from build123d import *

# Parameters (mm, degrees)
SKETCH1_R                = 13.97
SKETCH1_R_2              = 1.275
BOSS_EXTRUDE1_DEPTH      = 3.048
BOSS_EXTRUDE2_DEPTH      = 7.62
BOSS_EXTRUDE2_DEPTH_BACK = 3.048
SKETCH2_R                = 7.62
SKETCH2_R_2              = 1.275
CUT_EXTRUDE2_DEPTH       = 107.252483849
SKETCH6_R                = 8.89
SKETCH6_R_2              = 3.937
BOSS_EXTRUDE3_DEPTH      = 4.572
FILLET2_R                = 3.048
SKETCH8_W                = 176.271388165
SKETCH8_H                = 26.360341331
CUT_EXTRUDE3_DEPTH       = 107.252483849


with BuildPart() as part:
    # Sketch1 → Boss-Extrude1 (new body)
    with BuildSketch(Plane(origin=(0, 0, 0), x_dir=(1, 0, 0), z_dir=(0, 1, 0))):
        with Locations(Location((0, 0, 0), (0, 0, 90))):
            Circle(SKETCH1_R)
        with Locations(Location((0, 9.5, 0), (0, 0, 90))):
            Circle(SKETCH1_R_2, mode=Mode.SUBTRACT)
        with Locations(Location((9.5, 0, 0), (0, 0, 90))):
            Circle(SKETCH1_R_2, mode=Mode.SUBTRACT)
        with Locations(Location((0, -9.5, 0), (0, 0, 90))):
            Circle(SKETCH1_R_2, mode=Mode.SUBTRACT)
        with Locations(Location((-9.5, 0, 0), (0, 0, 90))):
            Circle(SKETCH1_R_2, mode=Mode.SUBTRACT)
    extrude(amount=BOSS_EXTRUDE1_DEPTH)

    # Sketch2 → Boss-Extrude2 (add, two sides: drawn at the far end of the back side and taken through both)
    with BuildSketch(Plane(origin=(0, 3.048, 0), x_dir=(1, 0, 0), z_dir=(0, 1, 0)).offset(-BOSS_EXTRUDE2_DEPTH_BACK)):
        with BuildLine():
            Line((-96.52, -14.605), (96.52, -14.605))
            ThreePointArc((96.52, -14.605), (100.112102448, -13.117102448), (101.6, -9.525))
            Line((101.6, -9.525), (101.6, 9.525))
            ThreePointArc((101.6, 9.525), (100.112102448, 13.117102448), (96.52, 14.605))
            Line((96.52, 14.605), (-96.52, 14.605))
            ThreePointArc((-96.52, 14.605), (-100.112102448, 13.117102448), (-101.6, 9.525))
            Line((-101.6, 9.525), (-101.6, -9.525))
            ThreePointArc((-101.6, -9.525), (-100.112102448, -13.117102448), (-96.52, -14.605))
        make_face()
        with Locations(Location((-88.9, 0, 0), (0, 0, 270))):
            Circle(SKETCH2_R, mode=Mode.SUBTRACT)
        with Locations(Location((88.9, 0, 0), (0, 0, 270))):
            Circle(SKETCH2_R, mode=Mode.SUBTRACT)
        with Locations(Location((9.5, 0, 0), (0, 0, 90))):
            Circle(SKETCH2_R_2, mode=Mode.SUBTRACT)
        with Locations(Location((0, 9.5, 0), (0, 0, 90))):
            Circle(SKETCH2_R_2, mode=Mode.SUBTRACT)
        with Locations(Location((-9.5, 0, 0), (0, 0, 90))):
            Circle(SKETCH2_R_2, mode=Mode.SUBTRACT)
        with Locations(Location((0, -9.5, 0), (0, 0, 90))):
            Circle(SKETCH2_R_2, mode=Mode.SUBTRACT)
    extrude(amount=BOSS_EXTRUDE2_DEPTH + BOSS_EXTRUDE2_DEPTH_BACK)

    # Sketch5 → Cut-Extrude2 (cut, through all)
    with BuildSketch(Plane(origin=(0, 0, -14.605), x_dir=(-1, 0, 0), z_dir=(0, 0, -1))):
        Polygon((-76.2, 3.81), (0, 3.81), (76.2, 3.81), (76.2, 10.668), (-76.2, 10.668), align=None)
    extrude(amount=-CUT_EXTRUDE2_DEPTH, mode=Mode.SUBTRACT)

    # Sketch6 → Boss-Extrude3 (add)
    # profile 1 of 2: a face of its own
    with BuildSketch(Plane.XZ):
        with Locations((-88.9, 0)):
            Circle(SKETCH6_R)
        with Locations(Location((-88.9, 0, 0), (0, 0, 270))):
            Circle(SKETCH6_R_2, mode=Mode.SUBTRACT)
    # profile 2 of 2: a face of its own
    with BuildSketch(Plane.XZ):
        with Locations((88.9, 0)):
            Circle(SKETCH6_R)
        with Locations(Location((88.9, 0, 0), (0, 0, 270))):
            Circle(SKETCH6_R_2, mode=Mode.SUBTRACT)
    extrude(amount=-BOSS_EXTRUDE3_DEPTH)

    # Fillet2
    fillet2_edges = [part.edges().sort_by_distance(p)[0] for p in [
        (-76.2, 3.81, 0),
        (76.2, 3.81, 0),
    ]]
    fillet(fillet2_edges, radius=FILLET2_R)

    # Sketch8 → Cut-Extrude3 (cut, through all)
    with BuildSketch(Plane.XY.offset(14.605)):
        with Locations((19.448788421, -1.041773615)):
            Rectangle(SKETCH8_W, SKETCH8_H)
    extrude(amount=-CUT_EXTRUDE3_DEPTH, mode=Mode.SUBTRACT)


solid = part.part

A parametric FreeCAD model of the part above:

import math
import FreeCAD as App
import Part
import Sketcher

V = App.Vector
Q = App.Units.Quantity


def edges_at(feature, points):
    """Names of the edges that pass closest to the given points."""
    edges = feature.Shape.Edges
    near = lambda p: min(range(len(edges)), key=lambda i: edges[i].distToShape(Part.Vertex(*p))[0])
    return sorted({f"Edge{near(p) + 1}" for p in points})

doc = App.newDocument("Part")
params = doc.addObject("Spreadsheet::Sheet", "Params")
for row, (alias, value) in enumerate([
    ("sketch1_diameter", "1.1 in"),
    ("pad1_length", "0.12 in"),
    ("sketch2_diameter", "0.6 in"),
    ("sketch2_radius", "0.2 in"),
    ("sketch2_width", "7.6 in"),
    ("sketch2_height", "0.75 in"),
    ("pad2_length", "0.3 in"),
    ("pad2_length2", "0.12 in"),
    ("sketch3_width", "6 in"),
    ("sketch3_height", "0.27 in"),
    ("sketch4_diameter", "0.7 in"),
    ("sketch4_diameter2", "0.31 in"),
    ("pad3_length", "0.18 in"),
    ("fillet_radius", "0.12 in"),
], start=1):
    params.set(f"A{row}", alias)
    params.set(f"B{row}", "=" + value)
    params.setAlias(f"B{row}", alias)

body = doc.addObject("PartDesign::Body", "Body")

sketch1 = body.newObject("Sketcher::SketchObject", "Sketch")
sketch1.AttachmentSupport = (doc.getObject("XZ_Plane"), [""])
sketch1.MapMode = "FlatFace"
sketch1.addGeometry(Part.Circle(V(0, 0, 0), V(0, 0, 1), 14), False)
sketch1.addGeometry(Part.Circle(V(0, 9.5, 0), V(0, 0, 1), 1.3), False)
sketch1.addGeometry(Part.Circle(V(9.5, 0, 0), V(0, 0, 1), 1.3), False)
sketch1.addGeometry(Part.Circle(V(-9.5, 0, 0), V(0, 0, 1), 1.3), False)
sketch1.addGeometry(Part.Circle(V(0, -9.5, 0), V(0, 0, 1), 1.3), False)
sketch1.addConstraint(Sketcher.Constraint("Coincident", 0, 3, -1, 1))
sketch1.addConstraint(Sketcher.Constraint("Equal", 1, 2))
sketch1.addConstraint(Sketcher.Constraint("Equal", 2, 3))
sketch1.addConstraint(Sketcher.Constraint("Equal", 3, 4))
sketch1.addConstraint(Sketcher.Constraint("Symmetric", 2, 3, 3, 3, -1, 1))
sketch1.addConstraint(Sketcher.Constraint("Symmetric", 1, 3, 4, 3, -1, 1))
sketch1.addConstraint(Sketcher.Constraint("PointOnObject", 1, 3, -2))
sketch1.addConstraint(Sketcher.Constraint("PointOnObject", 2, 3, -1))
sketch1.addConstraint(Sketcher.Constraint("Diameter", 0, Q("1.1 in")))
sketch1.addConstraint(Sketcher.Constraint("Diameter", 1, 2.55))
sketch1.addConstraint(Sketcher.Constraint("DistanceY", -1, 1, 1, 3, 9.5))
sketch1.addConstraint(Sketcher.Constraint("DistanceX", -1, 1, 2, 3, 9.5))
sketch1.setExpression("Constraints[8]", "Params.sketch1_diameter")
pad1 = body.newObject("PartDesign::Pad", "Pad")
pad1.Profile = sketch1
pad1.setExpression("Length", "Params.pad1_length")
pad1.Reversed = True

sketch2 = body.newObject("Sketcher::SketchObject", "Sketch001")
sketch2.AttachmentSupport = (doc.getObject("XZ_Plane"), [""])
sketch2.MapMode = "FlatFace"
sketch2.AttachmentOffset = App.Placement(V(0, 0, -0.12 * 25.4), App.Rotation())
sketch2.addGeometry(Part.LineSegment(V(-96.5, 14.6, 0), V(96.5, 14.6, 0)), False)
sketch2.addGeometry(Part.ArcOfCircle(Part.Circle(V(96.5, 9.5, 0), V(0, 0, 1), 5.1), math.radians(0), math.radians(90)), False)
sketch2.addGeometry(Part.LineSegment(V(101.6, 9.5, 0), V(101.6, -9.5, 0)), False)
sketch2.addGeometry(Part.ArcOfCircle(Part.Circle(V(96.5, -9.5, 0), V(0, 0, 1), 5.1), math.radians(-90), math.radians(0)), False)
sketch2.addGeometry(Part.LineSegment(V(96.5, -14.6, 0), V(-96.5, -14.6, 0)), False)
sketch2.addGeometry(Part.ArcOfCircle(Part.Circle(V(-96.5, -9.5, 0), V(0, 0, 1), 5.1), math.radians(-180), math.radians(-90)), False)
sketch2.addGeometry(Part.LineSegment(V(-101.6, -9.5, 0), V(-101.6, 9.5, 0)), False)
sketch2.addGeometry(Part.ArcOfCircle(Part.Circle(V(-96.5, 9.5, 0), V(0, 0, 1), 5.1), math.radians(90), math.radians(180)), False)
sketch2.addGeometry(Part.Circle(V(0, 9.5, 0), V(0, 0, 1), 1.3), False)
sketch2.addGeometry(Part.Circle(V(-88.9, 0, 0), V(0, 0, 1), 7.6), False)
sketch2.addGeometry(Part.Circle(V(-9.5, 0, 0), V(0, 0, 1), 1.3), False)
sketch2.addGeometry(Part.Circle(V(9.5, 0, 0), V(0, 0, 1), 1.3), False)
sketch2.addGeometry(Part.Circle(V(88.9, 0, 0), V(0, 0, 1), 7.6), False)
sketch2.addGeometry(Part.Circle(V(0, -9.5, 0), V(0, 0, 1), 1.3), False)
sketch2.addConstraint(Sketcher.Constraint("Tangent", 0, 2, 1, 2))
sketch2.addConstraint(Sketcher.Constraint("Tangent", 1, 1, 2, 1))
sketch2.addConstraint(Sketcher.Constraint("Tangent", 2, 2, 3, 2))
sketch2.addConstraint(Sketcher.Constraint("Tangent", 3, 1, 4, 1))
sketch2.addConstraint(Sketcher.Constraint("Tangent", 4, 2, 5, 2))
sketch2.addConstraint(Sketcher.Constraint("Tangent", 5, 1, 6, 1))
sketch2.addConstraint(Sketcher.Constraint("Tangent", 6, 2, 7, 2))
sketch2.addConstraint(Sketcher.Constraint("Tangent", 7, 1, 0, 1))
sketch2.addConstraint(Sketcher.Constraint("Horizontal", 0))
sketch2.addConstraint(Sketcher.Constraint("Vertical", 2))
sketch2.addConstraint(Sketcher.Constraint("Horizontal", 4))
sketch2.addConstraint(Sketcher.Constraint("Vertical", 6))
sketch2.addConstraint(Sketcher.Constraint("Equal", 1, 3))
sketch2.addConstraint(Sketcher.Constraint("Equal", 3, 5))
sketch2.addConstraint(Sketcher.Constraint("Equal", 5, 7))
sketch2.addConstraint(Sketcher.Constraint("Equal", 8, 10))
sketch2.addConstraint(Sketcher.Constraint("Equal", 10, 11))
sketch2.addConstraint(Sketcher.Constraint("Equal", 9, 12))
sketch2.addConstraint(Sketcher.Constraint("Equal", 11, 13))
sketch2.addConstraint(Sketcher.Constraint("Symmetric", 1, 3, 5, 3, -1, 1))
sketch2.addConstraint(Sketcher.Constraint("Symmetric", 10, 3, 11, 3, -1, 1))
sketch2.addConstraint(Sketcher.Constraint("Symmetric", 9, 3, 12, 3, -1, 1))
sketch2.addConstraint(Sketcher.Constraint("Symmetric", 8, 3, 13, 3, -1, 1))
sketch2.addConstraint(Sketcher.Constraint("PointOnObject", 8, 3, -2))
sketch2.addConstraint(Sketcher.Constraint("PointOnObject", 9, 3, -1))
sketch2.addConstraint(Sketcher.Constraint("PointOnObject", 10, 3, -1))
sketch2.addConstraint(Sketcher.Constraint("Diameter", 9, Q("0.6 in")))
sketch2.addConstraint(Sketcher.Constraint("Radius", 1, Q("0.2 in")))
sketch2.addConstraint(Sketcher.Constraint("DistanceX", 0, 1, 0, 2, Q("7.6 in")))
sketch2.addConstraint(Sketcher.Constraint("DistanceY", 2, 2, 2, 1, Q("0.75 in")))
sketch2.addConstraint(Sketcher.Constraint("DistanceX", 9, 3, -1, 1, Q("3.5 in")))
sketch2.addConstraint(Sketcher.Constraint("Diameter", 8, 2.55))
sketch2.addConstraint(Sketcher.Constraint("DistanceY", -1, 1, 8, 3, 9.5))
sketch2.addConstraint(Sketcher.Constraint("DistanceX", 10, 3, -1, 1, 9.5))
sketch2.setExpression("Constraints[26]", "Params.sketch2_diameter")
sketch2.setExpression("Constraints[27]", "Params.sketch2_radius")
sketch2.setExpression("Constraints[28]", "Params.sketch2_width")
sketch2.setExpression("Constraints[29]", "Params.sketch2_height")
pad2 = body.newObject("PartDesign::Pad", "Pad001")
pad2.Profile = sketch2
pad2.Type = "TwoLengths"
pad2.setExpression("Length", "Params.pad2_length")
pad2.setExpression("Length2", "Params.pad2_length2")
pad2.Reversed = True

sketch3 = body.newObject("Sketcher::SketchObject", "Sketch002")
sketch3.AttachmentSupport = (doc.getObject("XY_Plane"), [""])
sketch3.MapMode = "FlatFace"
sketch3.AttachmentOffset = App.Placement(V(0, 0, -0.575 * 25.4), App.Rotation())
sketch3.addGeometry(Part.LineSegment(V(76, 4, 0), V(-76, 4, 0)), False)
sketch3.addGeometry(Part.LineSegment(V(-76, 4, 0), V(-76, 11, 0)), False)
sketch3.addGeometry(Part.LineSegment(V(-76, 11, 0), V(76, 11, 0)), False)
sketch3.addGeometry(Part.LineSegment(V(76, 11, 0), V(76, 4, 0)), False)
sketch3.addConstraint(Sketcher.Constraint("Coincident", 0, 2, 1, 1))
sketch3.addConstraint(Sketcher.Constraint("Coincident", 1, 2, 2, 1))
sketch3.addConstraint(Sketcher.Constraint("Coincident", 2, 2, 3, 1))
sketch3.addConstraint(Sketcher.Constraint("Coincident", 3, 2, 0, 1))
sketch3.addConstraint(Sketcher.Constraint("Horizontal", 0))
sketch3.addConstraint(Sketcher.Constraint("Vertical", 1))
sketch3.addConstraint(Sketcher.Constraint("Horizontal", 2))
sketch3.addConstraint(Sketcher.Constraint("Vertical", 3))
sketch3.addConstraint(Sketcher.Constraint("DistanceX", 0, 2, 0, 1, Q("6 in")))
sketch3.addConstraint(Sketcher.Constraint("DistanceX", 0, 2, -1, 1, Q("3 in")))
sketch3.addConstraint(Sketcher.Constraint("DistanceY", 1, 1, 1, 2, Q("0.27 in")))
sketch3.addConstraint(Sketcher.Constraint("DistanceY", -1, 1, 0, 2, Q("0.15 in")))
sketch3.setExpression("Constraints[8]", "Params.sketch3_width")
sketch3.setExpression("Constraints[10]", "Params.sketch3_height")
pocket1 = body.newObject("PartDesign::Pocket", "Pocket")
pocket1.Profile = sketch3
pocket1.Type = "ThroughAll"
pocket1.Reversed = True

sketch4 = body.newObject("Sketcher::SketchObject", "Sketch003")
sketch4.AttachmentSupport = (doc.getObject("XZ_Plane"), [""])
sketch4.MapMode = "FlatFace"
sketch4.addGeometry(Part.Circle(V(-88.9, 0, 0), V(0, 0, 1), 8.9), False)
sketch4.addGeometry(Part.Circle(V(-88.9, 0, 0), V(0, 0, 1), 3.9), False)
sketch4.addGeometry(Part.Circle(V(88.9, 0, 0), V(0, 0, 1), 8.9), False)
sketch4.addGeometry(Part.Circle(V(88.9, 0, 0), V(0, 0, 1), 3.9), False)
sketch4.addConstraint(Sketcher.Constraint("Coincident", 1, 3, 0, 3))
sketch4.addConstraint(Sketcher.Constraint("Coincident", 3, 3, 2, 3))
sketch4.addConstraint(Sketcher.Constraint("Equal", 0, 2))
sketch4.addConstraint(Sketcher.Constraint("Equal", 1, 3))
sketch4.addConstraint(Sketcher.Constraint("Symmetric", 0, 3, 2, 3, -1, 1))
sketch4.addConstraint(Sketcher.Constraint("PointOnObject", 0, 3, -1))
sketch4.addConstraint(Sketcher.Constraint("Diameter", 0, Q("0.7 in")))
sketch4.addConstraint(Sketcher.Constraint("Diameter", 1, Q("0.31 in")))
sketch4.addConstraint(Sketcher.Constraint("DistanceX", 0, 3, 2, 3, Q("7 in")))
sketch4.setExpression("Constraints[6]", "Params.sketch4_diameter")
sketch4.setExpression("Constraints[7]", "Params.sketch4_diameter2")
pad3 = body.newObject("PartDesign::Pad", "Pad002")
pad3.Profile = sketch4
pad3.setExpression("Length", "Params.pad3_length")
pad3.Reversed = True
doc.recompute()

fillet = body.newObject("PartDesign::Fillet", "Fillet")
fillet.Base = (pad3, edges_at(pad3, [(-76.2, 3.81, 0), (76.2, 3.81, 0)]))
fillet.setExpression("Radius", "Params.fillet_radius")

sketch5 = body.newObject("Sketcher::SketchObject", "Sketch004")
sketch5.AttachmentSupport = (doc.getObject("XY_Plane"), [""])
sketch5.MapMode = "FlatFace"
sketch5.AttachmentOffset = App.Placement(V(0, 0, 0.575 * 25.4), App.Rotation())
sketch5.addGeometry(Part.LineSegment(V(-69, 12, 0), V(-69, -14, 0)), False)
sketch5.addGeometry(Part.LineSegment(V(-69, -14, 0), V(108, -14, 0)), False)
sketch5.addGeometry(Part.LineSegment(V(108, -14, 0), V(108, 12, 0)), False)
sketch5.addGeometry(Part.LineSegment(V(108, 12, 0), V(-69, 12, 0)), False)
sketch5.addConstraint(Sketcher.Constraint("Coincident", 0, 2, 1, 1))
sketch5.addConstraint(Sketcher.Constraint("Coincident", 1, 2, 2, 1))
sketch5.addConstraint(Sketcher.Constraint("Coincident", 2, 2, 3, 1))
sketch5.addConstraint(Sketcher.Constraint("Coincident", 3, 2, 0, 1))
sketch5.addConstraint(Sketcher.Constraint("Vertical", 0))
sketch5.addConstraint(Sketcher.Constraint("Horizontal", 1))
sketch5.addConstraint(Sketcher.Constraint("Vertical", 2))
sketch5.addConstraint(Sketcher.Constraint("Horizontal", 3))
sketch5.addConstraint(Sketcher.Constraint("DistanceX", 1, 1, 1, 2, 176.271388))
sketch5.addConstraint(Sketcher.Constraint("DistanceY", 0, 2, 0, 1, 26.360341))
sketch5.addConstraint(Sketcher.Constraint("DistanceX", 0, 2, -1, 1, 68.686906))
sketch5.addConstraint(Sketcher.Constraint("DistanceY", 0, 2, -1, 1, 14.221944))
pocket2 = body.newObject("PartDesign::Pocket", "Pocket001")
pocket2.Profile = sketch5
pocket2.Type = "ThroughAll"

doc.recompute()
